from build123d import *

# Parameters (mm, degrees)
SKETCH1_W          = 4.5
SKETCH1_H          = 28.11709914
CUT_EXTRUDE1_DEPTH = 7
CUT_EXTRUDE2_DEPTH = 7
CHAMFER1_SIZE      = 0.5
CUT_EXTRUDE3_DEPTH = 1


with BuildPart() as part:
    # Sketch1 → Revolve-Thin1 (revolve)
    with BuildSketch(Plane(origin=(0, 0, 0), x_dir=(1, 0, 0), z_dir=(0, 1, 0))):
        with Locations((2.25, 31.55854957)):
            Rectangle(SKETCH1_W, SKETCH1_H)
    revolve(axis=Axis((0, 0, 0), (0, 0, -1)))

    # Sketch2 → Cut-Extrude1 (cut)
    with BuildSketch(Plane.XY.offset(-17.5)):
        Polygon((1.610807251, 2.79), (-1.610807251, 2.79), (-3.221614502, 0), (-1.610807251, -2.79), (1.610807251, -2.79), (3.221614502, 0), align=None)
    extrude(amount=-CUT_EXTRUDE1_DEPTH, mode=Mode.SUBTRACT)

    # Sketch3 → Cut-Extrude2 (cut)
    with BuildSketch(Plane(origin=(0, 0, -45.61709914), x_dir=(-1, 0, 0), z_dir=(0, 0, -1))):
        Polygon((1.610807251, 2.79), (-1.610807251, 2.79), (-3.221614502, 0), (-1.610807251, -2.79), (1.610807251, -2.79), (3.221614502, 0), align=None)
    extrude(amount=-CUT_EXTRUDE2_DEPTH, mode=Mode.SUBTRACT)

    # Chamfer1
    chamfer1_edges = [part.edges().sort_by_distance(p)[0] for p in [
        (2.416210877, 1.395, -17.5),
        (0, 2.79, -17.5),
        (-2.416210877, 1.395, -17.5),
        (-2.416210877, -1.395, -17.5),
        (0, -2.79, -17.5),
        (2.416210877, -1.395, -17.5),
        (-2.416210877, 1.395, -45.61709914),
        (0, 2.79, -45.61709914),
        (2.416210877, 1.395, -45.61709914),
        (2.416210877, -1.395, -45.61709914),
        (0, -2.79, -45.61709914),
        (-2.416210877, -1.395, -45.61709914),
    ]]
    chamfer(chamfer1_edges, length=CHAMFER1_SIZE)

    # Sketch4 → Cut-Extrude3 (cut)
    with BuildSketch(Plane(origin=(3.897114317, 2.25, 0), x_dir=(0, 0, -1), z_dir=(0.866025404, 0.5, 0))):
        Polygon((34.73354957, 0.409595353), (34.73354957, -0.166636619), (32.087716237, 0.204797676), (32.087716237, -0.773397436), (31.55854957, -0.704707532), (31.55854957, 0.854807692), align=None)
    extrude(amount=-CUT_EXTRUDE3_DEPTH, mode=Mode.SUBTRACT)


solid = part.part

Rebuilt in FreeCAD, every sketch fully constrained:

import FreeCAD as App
import Part
import Sketcher
from FreeCAD import Vector
Q = App.Units.Quantity


def edges_at(feature, points):
    """Names of the edges that pass closest to the given points."""
    edges = feature.Shape.Edges
    near = lambda p: min(range(len(edges)), key=lambda i: edges[i].distToShape(Part.Vertex(*p))[0])
    return sorted({f"Edge{near(p) + 1}" for p in points})


def add_polygon(sketch, points):
    """Adds a closed chain of lines whose ends are joined by coincident constraints."""
    first, n = sketch.GeometryCount, len(points)
    for a, b in zip(points, points[1:] + points[:1]):
        sketch.addGeometry(Part.LineSegment(App.Vector(*a, 0), App.Vector(*b, 0)), False)
    for i in range(n):
        sketch.addConstraint(Sketcher.Constraint("Coincident", first + i, 2, first + (i + 1) % n, 1))

doc = App.newDocument("Part")
params = doc.addObject("Spreadsheet::Sheet", "Params")
for row, (alias, value) in enumerate([
    ("sketch1_width", "4.5 mm"),
    ("revolution_angle", "360 deg"),
    ("pocket1_length", "7 mm"),
    ("pocket2_length", "7 mm"),
    ("chamfer_size", "0.5 mm"),
    ("pocket3_length", "1 mm"),
], start=1):
    params.set(f"A{row}", alias)
    params.set(f"B{row}", "=" + value)
    params.setAlias(f"B{row}", alias)

body = doc.addObject("PartDesign::Body", "Body")

sketch1 = body.newObject("Sketcher::SketchObject", "Sketch")
sketch1.AttachmentSupport = (doc.getObject("XZ_Plane"), [""])
sketch1.MapMode = "FlatFace"
add_polygon(sketch1, [(0, -45.6), (0, -17.5), (4.5, -17.5), (4.5, -45.6)])
sketch1.addConstraint([
    Sketcher.Constraint("Vertical", 0),
    Sketcher.Constraint("Horizontal", 1),
    Sketcher.Constraint("Vertical", 2),
    Sketcher.Constraint("Horizontal", 3),
    Sketcher.Constraint("PointOnObject", 0, 2, -2),
    Sketcher.Constraint("DistanceX", 1, 1, 1, 2, 4.5),
    Sketcher.Constraint("DistanceY", 0, 2, -1, 1, 17.5),
    Sketcher.Constraint("DistanceY", 0, 1, 0, 2, 28.117099),
])
sketch1.setExpression("Constraints[9]", "Params.sketch1_width")
revolution = body.newObject("PartDesign::Revolution", "Revolution")
revolution.Profile = sketch1
revolution.ReferenceAxis = (sketch1, ["V_Axis"])
revolution.setExpression("Angle", "Params.revolution_angle")

sketch2 = body.newObject("Sketcher::SketchObject", "Sketch001")
sketch2.AttachmentSupport = (doc.getObject("XY_Plane"), [""])
sketch2.MapMode = "FlatFace"
sketch2.AttachmentOffset = App.Placement(Vector(0, 0, -17.5), App.Rotation())
add_polygon(sketch2, [(1.6, 2.8), (-1.6, 2.8), (-3.2, 0), (-1.6, -2.8), (1.6, -2.8), (3.2, 0)])
sketch2.addConstraint([
    Sketcher.Constraint("Horizontal", 0),
    Sketcher.Constraint("Horizontal", 3),
    Sketcher.Constraint("Symmetric", 0, 2, 3, 2, -1, 1),
    Sketcher.Constraint("Symmetric", 1, 2, 4, 2, -1, 1),
    Sketcher.Constraint("PointOnObject", 1, 2, -1),
    Sketcher.Constraint("Parallel", 2, 5),
    Sketcher.Constraint("Vertical", 0, 2, 2, 2),
    Sketcher.Constraint("Angle", 1, Q("-120 deg")),
    Sketcher.Constraint("DistanceY", -1, 1, 0, 2, 2.79),
    Sketcher.Constraint("DistanceX", 0, 2, 0, 1, 3.221615),
])
pocket1 = body.newObject("PartDesign::Pocket", "Pocket")
pocket1.Profile = sketch2
pocket1.setExpression("Length", "Params.pocket1_length")

sketch3 = body.newObject("Sketcher::SketchObject", "Sketch002")
sketch3.AttachmentSupport = (doc.getObject("XY_Plane"), [""])
sketch3.MapMode = "FlatFace"
sketch3.AttachmentOffset = App.Placement(Vector(0, 0, -45.617099), App.Rotation())
add_polygon(sketch3, [(-1.6, 2.8), (1.6, 2.8), (3.2, 0), (1.6, -2.8), (-1.6, -2.8), (-3.2, 0)])
sketch3.addConstraint([
    Sketcher.Constraint("Horizontal", 0),
    Sketcher.Constraint("Horizontal", 3),
    Sketcher.Constraint("Symmetric", 0, 2, 3, 2, -1, 1),
    Sketcher.Constraint("Symmetric", 1, 2, 4, 2, -1, 1),
    Sketcher.Constraint("PointOnObject", 1, 2, -1),
    Sketcher.Constraint("Parallel", 2, 5),
    Sketcher.Constraint("Vertical", 0, 2, 2, 2),
    Sketcher.Constraint("Angle", 1, Q("-60 deg")),
    Sketcher.Constraint("DistanceY", -1, 1, 0, 2, 2.79),
    Sketcher.Constraint("DistanceX", 0, 1, 0, 2, 3.221615),
])
pocket2 = body.newObject("PartDesign::Pocket", "Pocket001")
pocket2.Profile = sketch3
pocket2.setExpression("Length", "Params.pocket2_length")
pocket2.Reversed = True
doc.recompute()

chamfer = body.newObject("PartDesign::Chamfer", "Chamfer")
chamfer.Base = (pocket2, edges_at(pocket2, [
    (2.416, 1.395, -17.5),
    (0, 2.79, -17.5),
    (-2.416, 1.395, -17.5),
    (-2.416, -1.395, -17.5),
    (0, -2.79, -17.5),
    (2.416, -1.395, -17.5),
    (-2.416, 1.395, -45.617),
    (0, 2.79, -45.617),
    (2.416, 1.395, -45.617),
    (2.416, -1.395, -45.617),
    (0, -2.79, -45.617),
    (-2.416, -1.395, -45.617),
]))
chamfer.setExpression("Size", "Params.chamfer_size")

sketch4 = body.newObject("Sketcher::SketchObject", "Sketch003")
sketch4.Placement = App.Placement(Vector(3.897114, 2.25, 0), App.Rotation(Vector(0, 0, -1), Vector(-0.5, 0.866025404, 0), Vector(0.866025404, 0.5, 0), "ZXY"))
add_polygon(sketch4, [(34.7, -0.2), (34.7, 0.4), (31.6, 0.9), (31.6, -0.7), (32.1, -0.8), (32.1, 0.2)])
sketch4.addConstraint([
    Sketcher.Constraint("Vertical", 0),
    Sketcher.Constraint("Vertical", 2),
    Sketcher.Constraint("Vertical", 4),
    Sketcher.Constraint("DistanceX", 1, 2, 0, 2, 3.175),
    Sketcher.Constraint("DistanceY", 0, 1, 0, 2, 0.576232),
    Sketcher.Constraint("DistanceY", 2, 2, 2, 1, 1.559515),
    Sketcher.Constraint("DistanceY", 4, 1, 4, 2, 0.978195),
    Sketcher.Constraint("DistanceX", -1, 1, 0, 2, 34.73355),
    Sketcher.Constraint("DistanceY", 3, 2, 2, 2, 0.06869),
    Sketcher.Constraint("DistanceY", 3, 2, 5, 2, 0.606761),
    Sketcher.Constraint("Distance", 3, 0.533606),
    Sketcher.Constraint("DistanceY", -1, 1, 0, 2, 0.409595),
])
pocket3 = body.newObject("PartDesign::Pocket", "Pocket002")
pocket3.Profile = sketch4
pocket3.setExpression("Length", "Params.pocket3_length")

doc.recompute()
